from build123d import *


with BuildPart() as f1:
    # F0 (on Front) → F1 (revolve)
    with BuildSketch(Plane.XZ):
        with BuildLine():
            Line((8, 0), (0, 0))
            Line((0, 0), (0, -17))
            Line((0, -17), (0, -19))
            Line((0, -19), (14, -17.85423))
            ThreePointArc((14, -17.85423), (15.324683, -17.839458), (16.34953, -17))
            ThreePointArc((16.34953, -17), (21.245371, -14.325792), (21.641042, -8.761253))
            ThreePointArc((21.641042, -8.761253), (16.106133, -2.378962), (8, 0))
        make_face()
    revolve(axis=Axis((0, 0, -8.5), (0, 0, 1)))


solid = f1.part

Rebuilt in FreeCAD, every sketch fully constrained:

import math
import FreeCAD as App
import Part
import Sketcher
from FreeCAD import Vector
Q = App.Units.Quantity

doc = App.newDocument("Part")
body = doc.addObject("PartDesign::Body", "Body")

# Sketch on XZ plane
sketch1 = doc.addObject("Sketcher::SketchObject", "Sketch")
body.addObject(sketch1)
sketch1.AttachmentSupport = (doc.XZ_Plane, [""])
sketch1.MapMode = "FlatFace"
sketch1.addGeometry(Part.LineSegment(Vector(8, 0, 0), Vector(0, 0, 0)), False)
sketch1.addGeometry(Part.LineSegment(Vector(0, 0, 0), Vector(0, -19, 0)), False)
sketch1.addGeometry(Part.LineSegment(Vector(0, -19, 0), Vector(14, -17.9, 0)), False)
sketch1.addGeometry(Part.ArcOfCircle(Part.Circle(Vector(14.6, -16, 0), Vector(0, 0, 1), 2), math.radians(-109), math.radians(-31)), False)
sketch1.addGeometry(Part.ArcOfCircle(Part.Circle(Vector(16.3, -11.2, 0), Vector(0, 0, 1), 5.8), math.radians(-90), math.radians(25)), False)
sketch1.addGeometry(Part.ArcOfCircle(Part.Circle(Vector(8, -15, 0), Vector(0, 0, 1), 15), math.radians(25), math.radians(90)), False)
sketch1.addConstraint(Sketcher.Constraint("Coincident", 0, 2, 1, 1))
sketch1.addConstraint(Sketcher.Constraint("Coincident", 1, 2, 2, 1))
sketch1.addConstraint(Sketcher.Constraint("Coincident", 2, 2, 3, 1))
sketch1.addConstraint(Sketcher.Constraint("Coincident", 3, 2, 4, 1))
sketch1.addConstraint(Sketcher.Constraint("Tangent", 4, 2, 5, 1))
sketch1.addConstraint(Sketcher.Constraint("Tangent", 5, 2, 0, 1))
sketch1.addConstraint(Sketcher.Constraint("Horizontal", 0))
sketch1.addConstraint(Sketcher.Constraint("Vertical", 1))
sketch1.addConstraint(Sketcher.Constraint("Coincident", 0, 2, -1, 1))
sketch1.addConstraint(Sketcher.Constraint("Vertical", 4, 3, 3, 2))
sketch1.addConstraint(Sketcher.Constraint("Radius", 3, Q("1.999999 mm")))
sketch1.addConstraint(Sketcher.Constraint("Radius", 5, Q("15 mm")))
sketch1.addConstraint(Sketcher.Constraint("DistanceX", 0, 2, 0, 1, Q("8 mm")))
sketch1.addConstraint(Sketcher.Constraint("DistanceY", 1, 2, 1, 1, Q("19 mm")))
sketch1.addConstraint(Sketcher.Constraint("DistanceX", -1, 1, 2, 2, Q("14 mm")))
sketch1.addConstraint(Sketcher.Constraint("DistanceY", 3, 2, -1, 1, Q("17 mm")))
sketch1.addConstraint(Sketcher.Constraint("Radius", 4, Q("5.818667 mm")))
sketch1.addConstraint(Sketcher.Constraint("DistanceX", -1, 1, 3, 3, Q("14.641299 mm")))
revolution = doc.addObject("PartDesign::Revolution", "Revolution")
body.addObject(revolution)
revolution.Profile = sketch1
revolution.ReferenceAxis = (sketch1, ["V_Axis"])
revolution.Angle = 360

doc.recompute()
